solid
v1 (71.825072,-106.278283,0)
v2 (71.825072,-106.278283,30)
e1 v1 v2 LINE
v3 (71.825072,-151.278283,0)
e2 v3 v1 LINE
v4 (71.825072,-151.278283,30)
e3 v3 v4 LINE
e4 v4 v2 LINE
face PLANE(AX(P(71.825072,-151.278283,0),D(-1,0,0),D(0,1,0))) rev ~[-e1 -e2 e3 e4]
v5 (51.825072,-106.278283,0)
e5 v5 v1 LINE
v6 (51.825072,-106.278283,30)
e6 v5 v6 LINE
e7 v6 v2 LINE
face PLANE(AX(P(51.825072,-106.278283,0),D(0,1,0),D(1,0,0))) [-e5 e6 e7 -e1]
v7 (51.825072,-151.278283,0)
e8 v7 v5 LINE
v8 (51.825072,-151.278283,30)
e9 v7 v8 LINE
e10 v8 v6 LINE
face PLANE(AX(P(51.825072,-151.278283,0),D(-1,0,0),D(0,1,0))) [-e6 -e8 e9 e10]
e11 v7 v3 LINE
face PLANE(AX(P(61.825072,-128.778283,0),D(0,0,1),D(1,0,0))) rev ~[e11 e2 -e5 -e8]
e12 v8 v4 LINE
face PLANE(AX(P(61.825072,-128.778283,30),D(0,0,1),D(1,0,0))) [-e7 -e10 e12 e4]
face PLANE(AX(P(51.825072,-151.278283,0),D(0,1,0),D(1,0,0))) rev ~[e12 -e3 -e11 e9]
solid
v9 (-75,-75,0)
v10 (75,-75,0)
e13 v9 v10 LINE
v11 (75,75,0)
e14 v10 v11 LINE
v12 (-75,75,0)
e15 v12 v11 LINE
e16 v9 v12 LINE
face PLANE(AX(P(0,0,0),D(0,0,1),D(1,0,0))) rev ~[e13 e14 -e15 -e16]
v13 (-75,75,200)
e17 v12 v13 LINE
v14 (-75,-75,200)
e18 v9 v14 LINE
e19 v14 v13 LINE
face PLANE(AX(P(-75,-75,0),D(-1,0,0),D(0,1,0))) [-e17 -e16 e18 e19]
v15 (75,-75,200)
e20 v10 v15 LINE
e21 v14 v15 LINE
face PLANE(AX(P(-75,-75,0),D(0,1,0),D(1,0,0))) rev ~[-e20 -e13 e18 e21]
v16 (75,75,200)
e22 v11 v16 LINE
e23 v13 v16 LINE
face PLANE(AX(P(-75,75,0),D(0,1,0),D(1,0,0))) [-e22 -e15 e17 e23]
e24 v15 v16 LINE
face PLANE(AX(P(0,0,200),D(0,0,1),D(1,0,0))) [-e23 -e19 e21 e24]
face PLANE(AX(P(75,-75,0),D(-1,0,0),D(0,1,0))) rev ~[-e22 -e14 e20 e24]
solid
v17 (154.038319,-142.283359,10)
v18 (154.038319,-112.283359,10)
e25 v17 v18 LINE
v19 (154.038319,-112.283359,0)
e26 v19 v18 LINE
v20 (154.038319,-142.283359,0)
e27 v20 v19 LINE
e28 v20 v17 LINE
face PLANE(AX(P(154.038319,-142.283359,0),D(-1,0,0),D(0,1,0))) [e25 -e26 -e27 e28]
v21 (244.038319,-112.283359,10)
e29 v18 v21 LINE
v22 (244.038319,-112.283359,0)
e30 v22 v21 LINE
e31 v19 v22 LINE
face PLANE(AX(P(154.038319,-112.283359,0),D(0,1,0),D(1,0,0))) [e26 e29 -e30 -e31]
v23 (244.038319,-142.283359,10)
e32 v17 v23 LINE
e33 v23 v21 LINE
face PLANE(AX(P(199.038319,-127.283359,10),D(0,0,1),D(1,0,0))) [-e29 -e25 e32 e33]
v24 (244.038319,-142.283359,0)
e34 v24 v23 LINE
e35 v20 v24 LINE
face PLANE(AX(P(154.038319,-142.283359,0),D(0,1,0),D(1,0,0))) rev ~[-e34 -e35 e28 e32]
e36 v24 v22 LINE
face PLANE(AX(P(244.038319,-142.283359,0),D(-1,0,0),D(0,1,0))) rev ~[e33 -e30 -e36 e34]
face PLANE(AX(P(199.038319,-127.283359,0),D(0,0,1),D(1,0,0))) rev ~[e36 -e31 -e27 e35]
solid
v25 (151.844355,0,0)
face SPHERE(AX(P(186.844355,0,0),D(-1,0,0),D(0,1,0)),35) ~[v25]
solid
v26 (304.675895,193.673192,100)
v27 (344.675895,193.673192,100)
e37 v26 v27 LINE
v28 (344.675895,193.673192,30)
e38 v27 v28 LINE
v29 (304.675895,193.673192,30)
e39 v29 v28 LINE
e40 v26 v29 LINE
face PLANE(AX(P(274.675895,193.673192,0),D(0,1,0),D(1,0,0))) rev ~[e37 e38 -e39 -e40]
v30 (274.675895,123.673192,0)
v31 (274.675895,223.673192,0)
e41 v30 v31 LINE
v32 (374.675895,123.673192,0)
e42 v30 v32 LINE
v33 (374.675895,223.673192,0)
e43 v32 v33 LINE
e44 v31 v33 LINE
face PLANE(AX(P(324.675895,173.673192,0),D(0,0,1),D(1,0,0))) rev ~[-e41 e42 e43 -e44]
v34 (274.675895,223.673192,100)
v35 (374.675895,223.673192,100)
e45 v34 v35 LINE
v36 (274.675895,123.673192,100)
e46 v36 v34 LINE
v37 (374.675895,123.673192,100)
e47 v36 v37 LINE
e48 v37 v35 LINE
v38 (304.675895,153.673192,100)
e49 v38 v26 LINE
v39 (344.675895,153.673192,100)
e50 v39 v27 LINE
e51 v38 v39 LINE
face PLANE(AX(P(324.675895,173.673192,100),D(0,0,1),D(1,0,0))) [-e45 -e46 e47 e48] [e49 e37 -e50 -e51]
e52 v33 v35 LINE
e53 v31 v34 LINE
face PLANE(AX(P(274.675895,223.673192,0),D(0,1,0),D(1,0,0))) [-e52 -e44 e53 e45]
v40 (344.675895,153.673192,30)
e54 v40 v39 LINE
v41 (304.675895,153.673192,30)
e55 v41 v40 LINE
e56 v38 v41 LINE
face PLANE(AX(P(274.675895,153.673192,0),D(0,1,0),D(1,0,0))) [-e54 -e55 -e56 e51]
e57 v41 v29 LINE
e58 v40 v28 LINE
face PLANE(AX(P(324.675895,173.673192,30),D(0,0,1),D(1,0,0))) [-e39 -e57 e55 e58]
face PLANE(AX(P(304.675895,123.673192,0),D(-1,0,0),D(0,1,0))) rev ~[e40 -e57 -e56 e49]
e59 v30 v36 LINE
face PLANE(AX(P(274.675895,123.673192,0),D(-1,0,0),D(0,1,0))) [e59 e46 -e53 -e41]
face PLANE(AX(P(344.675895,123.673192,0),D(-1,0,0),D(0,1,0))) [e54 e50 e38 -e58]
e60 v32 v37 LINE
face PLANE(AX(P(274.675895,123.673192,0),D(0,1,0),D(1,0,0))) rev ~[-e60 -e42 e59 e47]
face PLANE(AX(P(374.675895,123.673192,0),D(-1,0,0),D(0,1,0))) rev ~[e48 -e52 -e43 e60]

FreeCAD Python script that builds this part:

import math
import FreeCAD as App
import Part
import Sketcher
from FreeCAD import Vector
Q = App.Units.Quantity


def faces_at(feature, points):
    """Names of the faces that lie closest to the given points."""
    faces = feature.Shape.Faces
    near = lambda p: min(range(len(faces)), key=lambda i: faces[i].distToShape(Part.Vertex(*p))[0])
    return sorted({f"Face{near(p) + 1}" for p in points})


def add_polygon(sketch, points):
    """Adds a closed chain of lines whose ends are joined by coincident constraints."""
    first, n = sketch.GeometryCount, len(points)
    for a, b in zip(points, points[1:] + points[:1]):
        sketch.addGeometry(Part.LineSegment(App.Vector(*a, 0), App.Vector(*b, 0)), False)
    for i in range(n):
        sketch.addConstraint(Sketcher.Constraint("Coincident", first + i, 2, first + (i + 1) % n, 1))

doc = App.newDocument("Part")
params = doc.addObject("Spreadsheet::Sheet", "Params")
for row, (alias, value) in enumerate([
    ("sketch1_width", "150 mm"),
    ("pad1_length", "200 mm"),
    ("sketch2_radius", "35 mm"),
    ("revolution_angle", "360 deg"),
    ("sketch3_width", "20 mm"),
    ("sketch3_height", "45 mm"),
    ("pad2_length", "30 mm"),
    ("sketch4_width", "90 mm"),
    ("sketch4_height", "30 mm"),
    ("pad3_length", "10 mm"),
    ("sketch5_width", "100 mm"),
    ("pad4_length", "100 mm"),
    ("thickness_wall", "30 mm"),
], start=1):
    params.set(f"A{row}", alias)
    params.set(f"B{row}", "=" + value)
    params.setAlias(f"B{row}", alias)

body = doc.addObject("PartDesign::Body", "Body")

# Sketch on XY plane
sketch1 = body.newObject("Sketcher::SketchObject", "Sketch")
sketch1.AttachmentSupport = (doc.getObject("XY_Plane"), [""])
sketch1.MapMode = "FlatFace"
add_polygon(sketch1, [(-75, 75), (-75, -75), (75, -75), (75, 75)])  # lines 0-3
sketch1.addConstraint([
    Sketcher.Constraint("Vertical", 0),
    Sketcher.Constraint("Horizontal", 1),
    Sketcher.Constraint("Vertical", 2),
    Sketcher.Constraint("Horizontal", 3),
    Sketcher.Constraint("Symmetric", 0, 2, 2, 2, -1, 1),
    Sketcher.Constraint("Equal", 3, 0),
    Sketcher.Constraint("DistanceX", 1, 1, 1, 2, Q("150 mm")),
])
sketch1.setExpression("Constraints[10]", "Params.sketch1_width")
pad1 = body.newObject("PartDesign::Pad", "Pad")
pad1.Profile = sketch1
pad1.setExpression("Length", "Params.pad1_length")
body2 = doc.addObject("PartDesign::Body", "Body001")

# Sketch on XY plane
sketch2 = body2.newObject("Sketcher::SketchObject", "Sketch001")
sketch2.AttachmentSupport = (doc.getObject("XY_Plane001"), [""])
sketch2.MapMode = "FlatFace"
sketch2.addGeometry([
    Part.ArcOfCircle(Part.Circle(Vector(187, 0, 0), Vector(0, 0, 1), 35), math.radians(0), math.radians(180)),
    Part.LineSegment(Vector(152, 0, 0), Vector(222, 0, 0)),
], False)
sketch2.addConstraint([
    Sketcher.Constraint("Coincident", 0, 1, 1, 2),
    Sketcher.Constraint("Coincident", 1, 1, 0, 2),
    Sketcher.Constraint("Horizontal", 1),
    Sketcher.Constraint("PointOnObject", 0, 3, -1),
    Sketcher.Constraint("PointOnObject", 0, 1, -1),
    Sketcher.Constraint("Radius", 0, Q("35 mm")),
    Sketcher.Constraint("DistanceX", -1, 1, 0, 3, Q("186.844355 mm")),
])
sketch2.setExpression("Constraints[5]", "Params.sketch2_radius")
revolution = body2.newObject("PartDesign::Revolution", "Revolution")
revolution.Profile = sketch2
revolution.ReferenceAxis = (sketch2, ["H_Axis"])
revolution.setExpression("Angle", "Params.revolution_angle")
body3 = doc.addObject("PartDesign::Body", "Body002")

# Sketch on XY plane
sketch3 = body3.newObject("Sketcher::SketchObject", "Sketch002")
sketch3.AttachmentSupport = (doc.getObject("XY_Plane002"), [""])
sketch3.MapMode = "FlatFace"
add_polygon(sketch3, [(52, -106), (52, -151), (72, -151), (72, -106)])  # lines 0-3
sketch3.addConstraint([
    Sketcher.Constraint("Vertical", 0),
    Sketcher.Constraint("Horizontal", 1),
    Sketcher.Constraint("Vertical", 2),
    Sketcher.Constraint("Horizontal", 3),
    Sketcher.Constraint("DistanceX", 1, 1, 1, 2, Q("20 mm")),
    Sketcher.Constraint("DistanceY", 0, 2, 0, 1, Q("45 mm")),
    Sketcher.Constraint("DistanceX", -1, 1, 0, 2, Q("51.825072 mm")),
    Sketcher.Constraint("DistanceY", 0, 2, -1, 1, Q("151.278283 mm")),
])
sketch3.setExpression("Constraints[8]", "Params.sketch3_width")
sketch3.setExpression("Constraints[9]", "Params.sketch3_height")
pad2 = body3.newObject("PartDesign::Pad", "Pad001")
pad2.Profile = sketch3
pad2.setExpression("Length", "Params.pad2_length")
body4 = doc.addObject("PartDesign::Body", "Body003")

# Sketch on XY plane
sketch4 = body4.newObject("Sketcher::SketchObject", "Sketch003")
sketch4.AttachmentSupport = (doc.getObject("XY_Plane003"), [""])
sketch4.MapMode = "FlatFace"
add_polygon(sketch4, [(154, -112), (154, -142), (244, -142), (244, -112)])  # lines 0-3
sketch4.addConstraint([
    Sketcher.Constraint("Vertical", 0),
    Sketcher.Constraint("Horizontal", 1),
    Sketcher.Constraint("Vertical", 2),
    Sketcher.Constraint("Horizontal", 3),
    Sketcher.Constraint("DistanceX", 1, 1, 1, 2, Q("90 mm")),
    Sketcher.Constraint("DistanceY", 0, 2, 0, 1, Q("30 mm")),
    Sketcher.Constraint("DistanceX", -1, 1, 0, 2, Q("154.038319 mm")),
    Sketcher.Constraint("DistanceY", 0, 2, -1, 1, Q("142.283359 mm")),
])
sketch4.setExpression("Constraints[8]", "Params.sketch4_width")
sketch4.setExpression("Constraints[9]", "Params.sketch4_height")
pad3 = body4.newObject("PartDesign::Pad", "Pad002")
pad3.Profile = sketch4
pad3.setExpression("Length", "Params.pad3_length")
body5 = doc.addObject("PartDesign::Body", "Body004")

# Sketch on XY plane
sketch5 = body5.newObject("Sketcher::SketchObject", "Sketch004")
sketch5.AttachmentSupport = (doc.getObject("XY_Plane004"), [""])
sketch5.MapMode = "FlatFace"
add_polygon(sketch5, [(275, 224), (275, 124), (375, 124), (375, 224)])  # lines 0-3
sketch5.addConstraint([
    Sketcher.Constraint("Vertical", 0),
    Sketcher.Constraint("Horizontal", 1),
    Sketcher.Constraint("Vertical", 2),
    Sketcher.Constraint("Horizontal", 3),
    Sketcher.Constraint("Equal", 3, 0),
    Sketcher.Constraint("DistanceX", 1, 1, 1, 2, Q("100 mm")),
    Sketcher.Constraint("DistanceY", -1, 1, 0, 2, Q("123.673192 mm")),
    Sketcher.Constraint("DistanceX", -1, 1, 0, 2, Q("274.675895 mm")),
])
sketch5.setExpression("Constraints[9]", "Params.sketch5_width")
pad4 = body5.newObject("PartDesign::Pad", "Pad003")
pad4.Profile = sketch5
pad4.setExpression("Length", "Params.pad4_length")
doc.recompute()

thickness = body5.newObject("PartDesign::Thickness", "Thickness")
thickness.Base = (pad4, faces_at(pad4, [(324.676, 173.673, 100)]))
thickness.setExpression("Value", "Params.thickness_wall")
thickness.Reversed = True
thickness.Join = "Arc"

doc.recompute()
